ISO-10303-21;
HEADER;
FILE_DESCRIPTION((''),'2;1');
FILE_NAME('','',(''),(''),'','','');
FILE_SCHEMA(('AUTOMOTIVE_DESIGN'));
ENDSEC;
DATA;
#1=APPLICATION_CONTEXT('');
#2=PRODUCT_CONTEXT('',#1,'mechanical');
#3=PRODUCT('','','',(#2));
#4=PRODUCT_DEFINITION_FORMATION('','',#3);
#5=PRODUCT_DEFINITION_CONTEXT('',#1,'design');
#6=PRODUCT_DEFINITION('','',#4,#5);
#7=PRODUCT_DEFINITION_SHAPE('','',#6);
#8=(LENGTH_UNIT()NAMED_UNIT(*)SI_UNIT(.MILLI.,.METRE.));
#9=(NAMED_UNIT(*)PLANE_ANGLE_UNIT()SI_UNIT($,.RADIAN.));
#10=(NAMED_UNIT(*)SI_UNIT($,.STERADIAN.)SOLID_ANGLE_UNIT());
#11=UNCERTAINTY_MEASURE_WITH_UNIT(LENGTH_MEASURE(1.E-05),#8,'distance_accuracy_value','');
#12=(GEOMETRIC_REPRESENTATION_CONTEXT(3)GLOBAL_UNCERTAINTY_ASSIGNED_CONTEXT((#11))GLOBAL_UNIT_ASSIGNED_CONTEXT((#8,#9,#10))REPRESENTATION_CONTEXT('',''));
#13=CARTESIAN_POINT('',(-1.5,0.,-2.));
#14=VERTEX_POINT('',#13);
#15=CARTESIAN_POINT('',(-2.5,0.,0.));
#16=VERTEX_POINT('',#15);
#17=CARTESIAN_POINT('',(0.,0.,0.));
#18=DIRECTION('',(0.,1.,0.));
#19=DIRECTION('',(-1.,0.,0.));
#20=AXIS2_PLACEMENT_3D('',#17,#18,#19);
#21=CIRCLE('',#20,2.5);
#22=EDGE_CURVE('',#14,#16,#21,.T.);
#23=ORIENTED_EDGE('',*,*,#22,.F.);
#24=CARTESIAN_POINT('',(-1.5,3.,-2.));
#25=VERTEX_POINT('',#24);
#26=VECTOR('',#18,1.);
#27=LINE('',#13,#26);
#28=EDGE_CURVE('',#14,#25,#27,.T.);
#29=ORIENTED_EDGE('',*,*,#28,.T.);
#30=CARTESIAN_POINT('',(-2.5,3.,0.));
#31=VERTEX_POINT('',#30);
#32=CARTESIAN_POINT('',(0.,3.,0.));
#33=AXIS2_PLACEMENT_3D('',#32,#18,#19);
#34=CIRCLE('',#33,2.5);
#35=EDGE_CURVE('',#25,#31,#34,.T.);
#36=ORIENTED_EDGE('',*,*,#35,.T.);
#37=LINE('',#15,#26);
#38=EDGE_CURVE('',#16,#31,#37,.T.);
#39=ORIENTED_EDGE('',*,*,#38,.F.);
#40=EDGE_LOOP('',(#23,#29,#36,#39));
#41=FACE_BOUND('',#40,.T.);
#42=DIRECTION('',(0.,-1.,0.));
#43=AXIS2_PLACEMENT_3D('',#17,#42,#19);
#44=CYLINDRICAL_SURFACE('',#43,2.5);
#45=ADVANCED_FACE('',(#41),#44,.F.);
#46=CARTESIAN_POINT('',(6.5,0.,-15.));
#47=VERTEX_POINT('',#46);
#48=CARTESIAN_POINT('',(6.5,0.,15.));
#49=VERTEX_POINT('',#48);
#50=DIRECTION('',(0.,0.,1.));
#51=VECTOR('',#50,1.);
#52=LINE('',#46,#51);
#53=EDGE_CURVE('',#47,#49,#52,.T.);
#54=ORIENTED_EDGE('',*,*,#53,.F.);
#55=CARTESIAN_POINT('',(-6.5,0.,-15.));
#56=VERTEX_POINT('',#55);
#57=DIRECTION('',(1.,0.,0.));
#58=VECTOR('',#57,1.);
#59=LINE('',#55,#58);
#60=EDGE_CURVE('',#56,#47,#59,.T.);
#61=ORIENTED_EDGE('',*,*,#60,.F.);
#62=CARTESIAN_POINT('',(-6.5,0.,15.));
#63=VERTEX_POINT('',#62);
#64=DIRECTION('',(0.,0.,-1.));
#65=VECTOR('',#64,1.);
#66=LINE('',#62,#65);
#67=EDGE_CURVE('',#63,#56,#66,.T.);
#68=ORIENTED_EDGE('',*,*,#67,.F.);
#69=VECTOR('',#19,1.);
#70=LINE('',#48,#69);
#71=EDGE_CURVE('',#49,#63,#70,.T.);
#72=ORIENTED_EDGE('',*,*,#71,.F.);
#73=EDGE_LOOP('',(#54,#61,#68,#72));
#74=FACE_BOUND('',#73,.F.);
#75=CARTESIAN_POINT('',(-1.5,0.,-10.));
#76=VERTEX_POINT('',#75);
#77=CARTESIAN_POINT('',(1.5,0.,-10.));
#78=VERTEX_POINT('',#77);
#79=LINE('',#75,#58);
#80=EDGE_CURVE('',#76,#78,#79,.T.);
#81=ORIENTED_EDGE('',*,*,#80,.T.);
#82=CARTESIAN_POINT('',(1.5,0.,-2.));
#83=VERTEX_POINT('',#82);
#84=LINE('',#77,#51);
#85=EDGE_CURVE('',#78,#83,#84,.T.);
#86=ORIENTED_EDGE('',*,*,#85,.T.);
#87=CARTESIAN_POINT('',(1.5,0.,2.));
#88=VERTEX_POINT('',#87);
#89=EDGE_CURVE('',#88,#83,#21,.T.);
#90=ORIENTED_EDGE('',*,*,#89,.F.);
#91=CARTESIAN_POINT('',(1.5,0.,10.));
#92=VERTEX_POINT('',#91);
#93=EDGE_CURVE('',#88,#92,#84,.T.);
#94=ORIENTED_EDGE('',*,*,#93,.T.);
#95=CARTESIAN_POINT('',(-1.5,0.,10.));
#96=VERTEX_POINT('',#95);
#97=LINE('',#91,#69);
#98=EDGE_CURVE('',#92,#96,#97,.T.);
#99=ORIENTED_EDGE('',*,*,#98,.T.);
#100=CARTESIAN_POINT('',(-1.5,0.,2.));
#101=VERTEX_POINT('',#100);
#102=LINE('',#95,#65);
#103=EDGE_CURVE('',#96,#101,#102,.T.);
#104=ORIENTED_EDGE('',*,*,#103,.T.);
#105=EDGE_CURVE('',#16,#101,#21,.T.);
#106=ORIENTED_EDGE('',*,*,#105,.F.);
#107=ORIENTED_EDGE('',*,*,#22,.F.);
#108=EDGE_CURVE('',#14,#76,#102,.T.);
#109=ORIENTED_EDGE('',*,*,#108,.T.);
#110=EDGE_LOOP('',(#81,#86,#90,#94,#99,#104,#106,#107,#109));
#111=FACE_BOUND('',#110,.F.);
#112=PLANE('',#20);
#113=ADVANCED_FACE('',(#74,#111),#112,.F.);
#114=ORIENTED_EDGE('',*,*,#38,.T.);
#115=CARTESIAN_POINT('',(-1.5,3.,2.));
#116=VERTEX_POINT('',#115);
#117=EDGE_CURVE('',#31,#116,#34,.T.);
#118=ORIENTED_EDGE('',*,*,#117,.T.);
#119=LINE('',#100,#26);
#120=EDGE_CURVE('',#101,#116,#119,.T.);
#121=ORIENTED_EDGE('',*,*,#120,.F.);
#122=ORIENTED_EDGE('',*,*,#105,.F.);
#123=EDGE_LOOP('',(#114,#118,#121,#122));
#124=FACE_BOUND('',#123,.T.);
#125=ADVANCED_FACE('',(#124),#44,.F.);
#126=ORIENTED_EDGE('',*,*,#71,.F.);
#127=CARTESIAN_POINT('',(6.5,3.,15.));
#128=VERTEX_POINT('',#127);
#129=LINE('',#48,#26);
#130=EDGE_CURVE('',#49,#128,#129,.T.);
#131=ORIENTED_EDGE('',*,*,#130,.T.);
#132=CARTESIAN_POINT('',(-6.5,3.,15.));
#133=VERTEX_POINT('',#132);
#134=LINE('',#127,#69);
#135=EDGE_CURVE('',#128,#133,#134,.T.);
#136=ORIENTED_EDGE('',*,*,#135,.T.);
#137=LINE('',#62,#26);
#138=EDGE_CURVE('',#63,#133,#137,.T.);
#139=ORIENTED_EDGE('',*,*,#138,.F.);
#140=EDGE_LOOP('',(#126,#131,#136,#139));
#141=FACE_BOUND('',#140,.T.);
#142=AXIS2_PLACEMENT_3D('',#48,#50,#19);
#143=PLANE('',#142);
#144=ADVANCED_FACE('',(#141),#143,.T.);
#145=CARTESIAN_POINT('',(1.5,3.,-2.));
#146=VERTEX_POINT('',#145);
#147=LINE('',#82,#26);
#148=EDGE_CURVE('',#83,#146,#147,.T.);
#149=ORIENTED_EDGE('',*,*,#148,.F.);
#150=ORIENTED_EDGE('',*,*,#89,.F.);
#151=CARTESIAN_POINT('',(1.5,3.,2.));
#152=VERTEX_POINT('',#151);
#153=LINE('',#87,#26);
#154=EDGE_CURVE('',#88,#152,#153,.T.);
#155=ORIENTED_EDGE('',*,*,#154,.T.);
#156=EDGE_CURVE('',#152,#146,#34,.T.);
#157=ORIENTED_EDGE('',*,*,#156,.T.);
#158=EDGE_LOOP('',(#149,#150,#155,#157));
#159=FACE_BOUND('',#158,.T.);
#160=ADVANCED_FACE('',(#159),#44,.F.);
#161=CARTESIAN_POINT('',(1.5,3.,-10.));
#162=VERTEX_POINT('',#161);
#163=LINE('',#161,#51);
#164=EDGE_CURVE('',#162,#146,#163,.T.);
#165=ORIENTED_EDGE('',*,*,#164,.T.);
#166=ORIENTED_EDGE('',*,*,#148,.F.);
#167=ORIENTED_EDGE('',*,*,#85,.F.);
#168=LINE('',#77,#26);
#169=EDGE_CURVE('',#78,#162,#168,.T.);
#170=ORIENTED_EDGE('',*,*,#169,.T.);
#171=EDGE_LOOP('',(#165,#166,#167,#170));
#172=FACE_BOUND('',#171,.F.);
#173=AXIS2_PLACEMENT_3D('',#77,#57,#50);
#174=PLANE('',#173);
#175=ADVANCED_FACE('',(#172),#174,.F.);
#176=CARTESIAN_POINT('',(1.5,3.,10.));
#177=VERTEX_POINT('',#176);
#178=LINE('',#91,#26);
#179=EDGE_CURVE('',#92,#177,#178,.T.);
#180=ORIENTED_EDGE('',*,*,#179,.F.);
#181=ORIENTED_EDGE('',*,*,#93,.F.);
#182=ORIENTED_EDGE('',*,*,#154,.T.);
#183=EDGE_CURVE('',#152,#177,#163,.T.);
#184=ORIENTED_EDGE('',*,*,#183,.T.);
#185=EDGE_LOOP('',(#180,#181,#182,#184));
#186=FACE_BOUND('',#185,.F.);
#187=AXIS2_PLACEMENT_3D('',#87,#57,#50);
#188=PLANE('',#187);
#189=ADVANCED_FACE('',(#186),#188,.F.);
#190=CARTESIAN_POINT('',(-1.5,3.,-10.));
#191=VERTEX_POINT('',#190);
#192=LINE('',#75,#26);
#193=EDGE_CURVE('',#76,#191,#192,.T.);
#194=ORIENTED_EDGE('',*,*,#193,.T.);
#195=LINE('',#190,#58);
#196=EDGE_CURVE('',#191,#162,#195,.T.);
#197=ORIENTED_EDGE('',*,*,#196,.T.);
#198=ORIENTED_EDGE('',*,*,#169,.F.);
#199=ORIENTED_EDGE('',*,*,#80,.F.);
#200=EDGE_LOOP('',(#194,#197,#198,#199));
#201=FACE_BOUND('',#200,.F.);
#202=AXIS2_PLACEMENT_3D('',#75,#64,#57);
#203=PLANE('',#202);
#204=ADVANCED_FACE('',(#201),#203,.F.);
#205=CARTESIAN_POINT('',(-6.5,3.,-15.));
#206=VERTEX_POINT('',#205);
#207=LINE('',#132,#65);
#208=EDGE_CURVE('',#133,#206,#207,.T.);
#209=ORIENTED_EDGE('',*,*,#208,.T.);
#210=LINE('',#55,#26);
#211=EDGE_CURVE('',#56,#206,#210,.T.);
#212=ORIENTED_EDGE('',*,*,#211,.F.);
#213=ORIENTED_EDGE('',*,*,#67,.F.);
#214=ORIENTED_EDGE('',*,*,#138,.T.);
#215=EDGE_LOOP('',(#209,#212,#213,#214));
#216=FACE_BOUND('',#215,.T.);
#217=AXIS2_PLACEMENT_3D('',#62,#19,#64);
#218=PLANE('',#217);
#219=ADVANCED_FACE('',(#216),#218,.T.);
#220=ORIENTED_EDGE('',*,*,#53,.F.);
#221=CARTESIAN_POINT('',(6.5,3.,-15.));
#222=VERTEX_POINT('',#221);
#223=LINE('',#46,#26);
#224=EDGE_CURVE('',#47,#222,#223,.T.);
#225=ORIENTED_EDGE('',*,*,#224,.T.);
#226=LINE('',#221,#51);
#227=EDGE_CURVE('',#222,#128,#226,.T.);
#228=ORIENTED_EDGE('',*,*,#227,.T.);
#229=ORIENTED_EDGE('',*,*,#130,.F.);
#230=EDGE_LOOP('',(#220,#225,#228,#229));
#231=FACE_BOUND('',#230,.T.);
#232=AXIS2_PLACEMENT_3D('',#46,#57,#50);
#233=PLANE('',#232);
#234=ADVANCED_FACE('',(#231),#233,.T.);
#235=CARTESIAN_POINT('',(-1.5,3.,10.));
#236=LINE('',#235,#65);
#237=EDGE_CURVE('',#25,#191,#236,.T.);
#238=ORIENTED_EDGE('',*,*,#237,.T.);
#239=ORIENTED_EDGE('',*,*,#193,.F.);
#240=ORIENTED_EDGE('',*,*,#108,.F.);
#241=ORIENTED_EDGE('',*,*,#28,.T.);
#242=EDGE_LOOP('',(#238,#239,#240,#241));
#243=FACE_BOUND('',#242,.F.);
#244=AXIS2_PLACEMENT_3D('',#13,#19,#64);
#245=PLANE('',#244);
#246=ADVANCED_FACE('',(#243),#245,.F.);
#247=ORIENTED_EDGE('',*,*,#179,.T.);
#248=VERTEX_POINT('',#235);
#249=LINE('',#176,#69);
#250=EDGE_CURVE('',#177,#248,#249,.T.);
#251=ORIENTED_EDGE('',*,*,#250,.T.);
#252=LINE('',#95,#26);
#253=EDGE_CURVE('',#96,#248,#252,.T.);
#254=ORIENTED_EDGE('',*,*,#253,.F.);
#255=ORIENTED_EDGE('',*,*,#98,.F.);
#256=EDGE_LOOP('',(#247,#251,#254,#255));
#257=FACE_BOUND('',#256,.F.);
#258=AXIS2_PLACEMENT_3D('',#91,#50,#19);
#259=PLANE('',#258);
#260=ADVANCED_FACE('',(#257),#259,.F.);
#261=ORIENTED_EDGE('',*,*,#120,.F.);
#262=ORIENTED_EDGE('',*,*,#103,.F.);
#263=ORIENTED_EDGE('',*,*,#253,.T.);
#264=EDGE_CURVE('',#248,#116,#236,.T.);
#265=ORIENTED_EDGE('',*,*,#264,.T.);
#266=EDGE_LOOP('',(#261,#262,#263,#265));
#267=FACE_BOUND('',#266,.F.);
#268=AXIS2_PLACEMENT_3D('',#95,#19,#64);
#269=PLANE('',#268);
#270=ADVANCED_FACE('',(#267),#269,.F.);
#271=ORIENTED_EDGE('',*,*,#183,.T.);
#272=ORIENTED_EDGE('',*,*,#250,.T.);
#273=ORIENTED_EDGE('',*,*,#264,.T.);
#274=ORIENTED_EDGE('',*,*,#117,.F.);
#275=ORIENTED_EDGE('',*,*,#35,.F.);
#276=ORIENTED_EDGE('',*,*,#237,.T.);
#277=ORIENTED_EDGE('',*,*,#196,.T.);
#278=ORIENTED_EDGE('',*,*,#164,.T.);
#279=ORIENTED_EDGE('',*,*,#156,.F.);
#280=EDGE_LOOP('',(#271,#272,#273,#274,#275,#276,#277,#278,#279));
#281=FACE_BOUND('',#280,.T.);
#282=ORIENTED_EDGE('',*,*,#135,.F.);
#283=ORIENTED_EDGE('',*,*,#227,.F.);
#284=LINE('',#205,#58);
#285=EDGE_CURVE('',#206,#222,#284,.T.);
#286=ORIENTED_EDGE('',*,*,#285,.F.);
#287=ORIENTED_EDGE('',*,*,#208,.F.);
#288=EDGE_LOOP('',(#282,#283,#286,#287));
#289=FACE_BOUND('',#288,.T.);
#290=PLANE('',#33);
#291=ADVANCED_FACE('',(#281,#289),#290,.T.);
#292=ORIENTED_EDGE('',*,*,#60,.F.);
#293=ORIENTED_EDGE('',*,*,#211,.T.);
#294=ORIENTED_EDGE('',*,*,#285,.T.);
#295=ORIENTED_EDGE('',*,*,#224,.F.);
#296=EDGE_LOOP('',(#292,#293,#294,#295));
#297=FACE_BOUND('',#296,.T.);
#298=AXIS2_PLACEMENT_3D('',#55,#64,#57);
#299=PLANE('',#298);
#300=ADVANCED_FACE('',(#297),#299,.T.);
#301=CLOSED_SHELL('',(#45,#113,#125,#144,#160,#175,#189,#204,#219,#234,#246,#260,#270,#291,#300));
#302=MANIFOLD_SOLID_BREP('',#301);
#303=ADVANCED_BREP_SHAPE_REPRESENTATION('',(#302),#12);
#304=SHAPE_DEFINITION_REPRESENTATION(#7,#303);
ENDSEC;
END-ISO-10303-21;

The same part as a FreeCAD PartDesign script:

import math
import FreeCAD as App
import Part
import Sketcher
from FreeCAD import Vector
Q = App.Units.Quantity

doc = App.newDocument("Part")
params = doc.addObject("Spreadsheet::Sheet", "Params")
for row, (alias, value) in enumerate([
    ("sketch1_radius", "2.5 mm"),
    ("sketch1_width", "3 mm"),
    ("sketch1_height", "30 mm"),
    ("pad1_length", "3 mm"),
], start=1):
    params.set(f"A{row}", alias)
    params.set(f"B{row}", "=" + value)
    params.setAlias(f"B{row}", alias)

body = doc.addObject("PartDesign::Body", "Body")

sketch1 = body.newObject("Sketcher::SketchObject", "Sketch")
sketch1.AttachmentSupport = (doc.getObject("XZ_Plane"), [""])
sketch1.MapMode = "FlatFace"
sketch1.addGeometry(Part.LineSegment(Vector(-6.5, 15, 0), Vector(6.5, 15, 0)), False)
sketch1.addGeometry(Part.LineSegment(Vector(6.5, 15, 0), Vector(6.5, -15, 0)), False)
sketch1.addGeometry(Part.LineSegment(Vector(6.5, -15, 0), Vector(-6.5, -15, 0)), False)
sketch1.addGeometry(Part.LineSegment(Vector(-6.5, -15, 0), Vector(-6.5, 15, 0)), False)
sketch1.addGeometry(Part.LineSegment(Vector(1.5, 2, 0), Vector(1.5, 10, 0)), False)
sketch1.addGeometry(Part.LineSegment(Vector(1.5, 10, 0), Vector(-1.5, 10, 0)), False)
sketch1.addGeometry(Part.LineSegment(Vector(-1.5, 10, 0), Vector(-1.5, 2, 0)), False)
sketch1.addGeometry(Part.ArcOfCircle(Part.Circle(Vector(0, 0, 0), Vector(0, 0, 1), 2.5), math.radians(127), math.radians(233)), False)
sketch1.addGeometry(Part.LineSegment(Vector(-1.5, -2, 0), Vector(-1.5, -10, 0)), False)
sketch1.addGeometry(Part.LineSegment(Vector(-1.5, -10, 0), Vector(1.5, -10, 0)), False)
sketch1.addGeometry(Part.LineSegment(Vector(1.5, -10, 0), Vector(1.5, -2, 0)), False)
sketch1.addGeometry(Part.ArcOfCircle(Part.Circle(Vector(0, 0, 0), Vector(0, 0, 1), 2.5), math.radians(-53), math.radians(53)), False)
sketch1.addConstraint(Sketcher.Constraint("Coincident", 0, 2, 1, 1))
sketch1.addConstraint(Sketcher.Constraint("Coincident", 1, 2, 2, 1))
sketch1.addConstraint(Sketcher.Constraint("Coincident", 2, 2, 3, 1))
sketch1.addConstraint(Sketcher.Constraint("Coincident", 3, 2, 0, 1))
sketch1.addConstraint(Sketcher.Constraint("Coincident", 4, 2, 5, 1))
sketch1.addConstraint(Sketcher.Constraint("Coincident", 5, 2, 6, 1))
sketch1.addConstraint(Sketcher.Constraint("Coincident", 6, 2, 7, 1))
sketch1.addConstraint(Sketcher.Constraint("Coincident", 7, 2, 8, 1))
sketch1.addConstraint(Sketcher.Constraint("Coincident", 8, 2, 9, 1))
sketch1.addConstraint(Sketcher.Constraint("Coincident", 9, 2, 10, 1))
sketch1.addConstraint(Sketcher.Constraint("Coincident", 10, 2, 11, 1))
sketch1.addConstraint(Sketcher.Constraint("Coincident", 11, 2, 4, 1))
sketch1.addConstraint(Sketcher.Constraint("Horizontal", 0))
sketch1.addConstraint(Sketcher.Constraint("Vertical", 1))
sketch1.addConstraint(Sketcher.Constraint("Horizontal", 2))
sketch1.addConstraint(Sketcher.Constraint("Vertical", 3))
sketch1.addConstraint(Sketcher.Constraint("Vertical", 4))
sketch1.addConstraint(Sketcher.Constraint("Horizontal", 5))
sketch1.addConstraint(Sketcher.Constraint("Vertical", 6))
sketch1.addConstraint(Sketcher.Constraint("Vertical", 8))
sketch1.addConstraint(Sketcher.Constraint("Horizontal", 9))
sketch1.addConstraint(Sketcher.Constraint("Vertical", 10))
sketch1.addConstraint(Sketcher.Constraint("Coincident", 7, 3, -1, 1))
sketch1.addConstraint(Sketcher.Constraint("Coincident", 11, 3, -1, 1))
sketch1.addConstraint(Sketcher.Constraint("Equal", 7, 11))
sketch1.addConstraint(Sketcher.Constraint("Symmetric", 0, 2, 2, 2, -1, 1))
sketch1.addConstraint(Sketcher.Constraint("Symmetric", 4, 2, 8, 2, -1, 1))
sketch1.addConstraint(Sketcher.Constraint("Horizontal", 7, 2, 10, 2))
sketch1.addConstraint(Sketcher.Constraint("Horizontal", 6, 2, 11, 2))
sketch1.addConstraint(Sketcher.Constraint("Radius", 7, Q("2.5 mm")))
sketch1.addConstraint(Sketcher.Constraint("DistanceX", 5, 2, 5, 1, Q("3 mm")))
sketch1.addConstraint(Sketcher.Constraint("DistanceX", 4, 2, 0, 2, Q("5 mm")))
sketch1.addConstraint(Sketcher.Constraint("DistanceY", 4, 2, 0, 2, Q("5 mm")))
sketch1.addConstraint(Sketcher.Constraint("DistanceY", 1, 2, 1, 1, Q("30 mm")))
sketch1.setExpression("Constraints[29]", "Params.sketch1_radius")
sketch1.setExpression("Constraints[30]", "Params.sketch1_width")
sketch1.setExpression("Constraints[33]", "Params.sketch1_height")
pad1 = body.newObject("PartDesign::Pad", "Pad")
pad1.Profile = sketch1
pad1.setExpression("Length", "Params.pad1_length")
pad1.Reversed = True

doc.recompute()
